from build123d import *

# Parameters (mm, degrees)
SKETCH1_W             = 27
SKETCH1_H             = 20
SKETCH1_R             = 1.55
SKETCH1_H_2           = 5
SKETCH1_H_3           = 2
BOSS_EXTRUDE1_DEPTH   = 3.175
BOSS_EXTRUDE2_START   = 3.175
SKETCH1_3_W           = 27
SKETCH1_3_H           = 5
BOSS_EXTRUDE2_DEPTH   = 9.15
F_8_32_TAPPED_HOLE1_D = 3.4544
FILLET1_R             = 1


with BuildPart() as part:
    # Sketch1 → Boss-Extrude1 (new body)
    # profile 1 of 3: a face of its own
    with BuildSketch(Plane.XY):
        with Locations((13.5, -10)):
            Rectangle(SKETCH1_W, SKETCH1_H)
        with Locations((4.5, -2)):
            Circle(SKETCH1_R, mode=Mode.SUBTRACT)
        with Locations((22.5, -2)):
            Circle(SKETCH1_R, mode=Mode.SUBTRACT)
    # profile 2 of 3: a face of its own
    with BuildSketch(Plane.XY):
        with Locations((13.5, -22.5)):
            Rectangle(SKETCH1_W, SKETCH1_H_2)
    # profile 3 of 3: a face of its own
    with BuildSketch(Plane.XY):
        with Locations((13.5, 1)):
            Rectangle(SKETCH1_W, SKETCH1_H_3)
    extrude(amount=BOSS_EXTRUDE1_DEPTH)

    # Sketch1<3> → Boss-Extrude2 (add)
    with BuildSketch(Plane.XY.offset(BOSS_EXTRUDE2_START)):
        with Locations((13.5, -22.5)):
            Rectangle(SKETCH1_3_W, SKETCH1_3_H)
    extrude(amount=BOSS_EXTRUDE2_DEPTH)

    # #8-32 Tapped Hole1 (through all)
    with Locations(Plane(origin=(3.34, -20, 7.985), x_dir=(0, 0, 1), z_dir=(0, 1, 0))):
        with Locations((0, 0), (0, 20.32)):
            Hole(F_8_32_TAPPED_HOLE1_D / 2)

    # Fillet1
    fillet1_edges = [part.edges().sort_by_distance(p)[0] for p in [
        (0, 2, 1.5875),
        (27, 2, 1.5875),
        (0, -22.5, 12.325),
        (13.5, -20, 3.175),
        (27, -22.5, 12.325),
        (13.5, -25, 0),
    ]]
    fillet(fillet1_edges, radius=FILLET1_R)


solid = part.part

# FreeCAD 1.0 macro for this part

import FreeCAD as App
import Part
import Sketcher


def edges_at(feature, points):
    """Names of the edges that pass closest to the given points."""
    edges = feature.Shape.Edges
    near = lambda p: min(range(len(edges)), key=lambda i: edges[i].distToShape(Part.Vertex(*p))[0])
    return sorted({f"Edge{near(p) + 1}" for p in points})

doc = App.newDocument("Part")
body = doc.addObject("PartDesign::Body", "Body")

# Sketch on XY plane
sketch1 = body.newObject("Sketcher::SketchObject", "Sketch")
sketch1.AttachmentSupport = (doc.getObject("XY_Plane"), [""])
sketch1.MapMode = "FlatFace"
sketch1.addGeometry([
    Part.LineSegment(App.Vector(0, -25, 0), App.Vector(27, -25, 0)),  # 0
    Part.LineSegment(App.Vector(27, -25, 0), App.Vector(27, 2, 0)),  # 1
    Part.LineSegment(App.Vector(27, 2, 0), App.Vector(0, 2, 0)),  # 2
    Part.LineSegment(App.Vector(0, 2, 0), App.Vector(0, -25, 0)),  # 3
    Part.Circle(App.Vector(4.5, -2, 0), App.Vector(0, 0, 1), 1.6),  # 4
    Part.Circle(App.Vector(22.5, -2, 0), App.Vector(0, 0, 1), 1.6),  # 5
], False)
sketch1.addConstraint([
    Sketcher.Constraint("Coincident", 0, 2, 1, 1),
    Sketcher.Constraint("Coincident", 1, 2, 2, 1),
    Sketcher.Constraint("Coincident", 2, 2, 3, 1),
    Sketcher.Constraint("Coincident", 3, 2, 0, 1),
    Sketcher.Constraint("Horizontal", 0),
    Sketcher.Constraint("Vertical", 1),
    Sketcher.Constraint("Horizontal", 2),
    Sketcher.Constraint("Vertical", 3),
    Sketcher.Constraint("Equal", 4, 5),
    Sketcher.Constraint("PointOnObject", 2, 2, -2),
    Sketcher.Constraint("Horizontal", 4, 3, 5, 3),
    Sketcher.Constraint("Equal", 2, 1),
    Sketcher.Constraint("Diameter", 4, 3.1),
    Sketcher.Constraint("DistanceX", 0, 1, 0, 2, 27.0),
    Sketcher.Constraint("DistanceY", 4, 3, -1, 1, 2.0),
    Sketcher.Constraint("DistanceY", 0, 2, -1, 1, 25.0),
    Sketcher.Constraint("DistanceX", 4, 3, 5, 3, 18.0),
    Sketcher.Constraint("DistanceX", -1, 1, 4, 3, 4.5),
])
pad1 = body.newObject("PartDesign::Pad", "Pad")
pad1.Profile = sketch1
pad1.Length = 3.175

# Sketch on XY plane
sketch2 = body.newObject("Sketcher::SketchObject", "Sketch001")
sketch2.AttachmentSupport = (doc.getObject("XY_Plane"), [""])
sketch2.MapMode = "FlatFace"
sketch2.AttachmentOffset = App.Placement(App.Vector(0, 0, 3.175), App.Rotation())
sketch2.addGeometry([
    Part.LineSegment(App.Vector(0, -20, 0), App.Vector(0, -25, 0)),
    Part.LineSegment(App.Vector(0, -25, 0), App.Vector(27, -25, 0)),
    Part.LineSegment(App.Vector(27, -25, 0), App.Vector(27, -20, 0)),
    Part.LineSegment(App.Vector(27, -20, 0), App.Vector(0, -20, 0)),
], False)
sketch2.addConstraint([
    Sketcher.Constraint("Coincident", 0, 2, 1, 1),
    Sketcher.Constraint("Coincident", 1, 2, 2, 1),
    Sketcher.Constraint("Coincident", 2, 2, 3, 1),
    Sketcher.Constraint("Coincident", 3, 2, 0, 1),
    Sketcher.Constraint("Vertical", 0),
    Sketcher.Constraint("Horizontal", 1),
    Sketcher.Constraint("Vertical", 2),
    Sketcher.Constraint("Horizontal", 3),
    Sketcher.Constraint("PointOnObject", 0, 2, -2),
    Sketcher.Constraint("DistanceX", 1, 1, 1, 2, 27.0),
    Sketcher.Constraint("DistanceY", 0, 2, 0, 1, 5.0),
    Sketcher.Constraint("DistanceY", 0, 2, -1, 1, 25.0),
])
pad2 = body.newObject("PartDesign::Pad", "Pad001")
pad2.Profile = sketch2
pad2.Length = 9.15

# Sketch on XZ plane
sketch3 = body.newObject("Sketcher::SketchObject", "Sketch002")
sketch3.AttachmentSupport = (doc.getObject("XZ_Plane"), [""])
sketch3.MapMode = "FlatFace"
sketch3.AttachmentOffset = App.Placement(App.Vector(0, 0, 20), App.Rotation())
sketch3.addGeometry([
    Part.Circle(App.Vector(3.3, 8, 0), App.Vector(0, 0, 1), 1.7),
    Part.Circle(App.Vector(23.7, 8, 0), App.Vector(0, 0, 1), 1.7),
], False)
sketch3.addConstraint([
    Sketcher.Constraint("Equal", 0, 1),
    Sketcher.Constraint("Horizontal", 0, 3, 1, 3),
    Sketcher.Constraint("Diameter", 0, 3.4544),
    Sketcher.Constraint("DistanceX", -1, 1, 0, 3, 3.34),
    Sketcher.Constraint("DistanceX", -1, 1, 1, 3, 23.66),
    Sketcher.Constraint("DistanceY", -1, 1, 0, 3, 7.985),
])
doc.recompute()
hole = body.newObject("PartDesign::Hole", "Hole")
hole.Profile = sketch3
hole.ThreadType = "None"
hole.Diameter = 3.4544
hole.DepthType = "ThroughAll"
hole.Reversed = True
doc.recompute()

fillet = body.newObject("PartDesign::Fillet", "Fillet")
fillet.Base = (hole, edges_at(hole, [
    (0, 2, 1.587),
    (27, 2, 1.587),
    (0, -22.5, 12.325),
    (13.5, -20, 3.175),
    (27, -22.5, 12.325),
    (13.5, -25, 0),
]))
fillet.Radius = 1

doc.recompute()
